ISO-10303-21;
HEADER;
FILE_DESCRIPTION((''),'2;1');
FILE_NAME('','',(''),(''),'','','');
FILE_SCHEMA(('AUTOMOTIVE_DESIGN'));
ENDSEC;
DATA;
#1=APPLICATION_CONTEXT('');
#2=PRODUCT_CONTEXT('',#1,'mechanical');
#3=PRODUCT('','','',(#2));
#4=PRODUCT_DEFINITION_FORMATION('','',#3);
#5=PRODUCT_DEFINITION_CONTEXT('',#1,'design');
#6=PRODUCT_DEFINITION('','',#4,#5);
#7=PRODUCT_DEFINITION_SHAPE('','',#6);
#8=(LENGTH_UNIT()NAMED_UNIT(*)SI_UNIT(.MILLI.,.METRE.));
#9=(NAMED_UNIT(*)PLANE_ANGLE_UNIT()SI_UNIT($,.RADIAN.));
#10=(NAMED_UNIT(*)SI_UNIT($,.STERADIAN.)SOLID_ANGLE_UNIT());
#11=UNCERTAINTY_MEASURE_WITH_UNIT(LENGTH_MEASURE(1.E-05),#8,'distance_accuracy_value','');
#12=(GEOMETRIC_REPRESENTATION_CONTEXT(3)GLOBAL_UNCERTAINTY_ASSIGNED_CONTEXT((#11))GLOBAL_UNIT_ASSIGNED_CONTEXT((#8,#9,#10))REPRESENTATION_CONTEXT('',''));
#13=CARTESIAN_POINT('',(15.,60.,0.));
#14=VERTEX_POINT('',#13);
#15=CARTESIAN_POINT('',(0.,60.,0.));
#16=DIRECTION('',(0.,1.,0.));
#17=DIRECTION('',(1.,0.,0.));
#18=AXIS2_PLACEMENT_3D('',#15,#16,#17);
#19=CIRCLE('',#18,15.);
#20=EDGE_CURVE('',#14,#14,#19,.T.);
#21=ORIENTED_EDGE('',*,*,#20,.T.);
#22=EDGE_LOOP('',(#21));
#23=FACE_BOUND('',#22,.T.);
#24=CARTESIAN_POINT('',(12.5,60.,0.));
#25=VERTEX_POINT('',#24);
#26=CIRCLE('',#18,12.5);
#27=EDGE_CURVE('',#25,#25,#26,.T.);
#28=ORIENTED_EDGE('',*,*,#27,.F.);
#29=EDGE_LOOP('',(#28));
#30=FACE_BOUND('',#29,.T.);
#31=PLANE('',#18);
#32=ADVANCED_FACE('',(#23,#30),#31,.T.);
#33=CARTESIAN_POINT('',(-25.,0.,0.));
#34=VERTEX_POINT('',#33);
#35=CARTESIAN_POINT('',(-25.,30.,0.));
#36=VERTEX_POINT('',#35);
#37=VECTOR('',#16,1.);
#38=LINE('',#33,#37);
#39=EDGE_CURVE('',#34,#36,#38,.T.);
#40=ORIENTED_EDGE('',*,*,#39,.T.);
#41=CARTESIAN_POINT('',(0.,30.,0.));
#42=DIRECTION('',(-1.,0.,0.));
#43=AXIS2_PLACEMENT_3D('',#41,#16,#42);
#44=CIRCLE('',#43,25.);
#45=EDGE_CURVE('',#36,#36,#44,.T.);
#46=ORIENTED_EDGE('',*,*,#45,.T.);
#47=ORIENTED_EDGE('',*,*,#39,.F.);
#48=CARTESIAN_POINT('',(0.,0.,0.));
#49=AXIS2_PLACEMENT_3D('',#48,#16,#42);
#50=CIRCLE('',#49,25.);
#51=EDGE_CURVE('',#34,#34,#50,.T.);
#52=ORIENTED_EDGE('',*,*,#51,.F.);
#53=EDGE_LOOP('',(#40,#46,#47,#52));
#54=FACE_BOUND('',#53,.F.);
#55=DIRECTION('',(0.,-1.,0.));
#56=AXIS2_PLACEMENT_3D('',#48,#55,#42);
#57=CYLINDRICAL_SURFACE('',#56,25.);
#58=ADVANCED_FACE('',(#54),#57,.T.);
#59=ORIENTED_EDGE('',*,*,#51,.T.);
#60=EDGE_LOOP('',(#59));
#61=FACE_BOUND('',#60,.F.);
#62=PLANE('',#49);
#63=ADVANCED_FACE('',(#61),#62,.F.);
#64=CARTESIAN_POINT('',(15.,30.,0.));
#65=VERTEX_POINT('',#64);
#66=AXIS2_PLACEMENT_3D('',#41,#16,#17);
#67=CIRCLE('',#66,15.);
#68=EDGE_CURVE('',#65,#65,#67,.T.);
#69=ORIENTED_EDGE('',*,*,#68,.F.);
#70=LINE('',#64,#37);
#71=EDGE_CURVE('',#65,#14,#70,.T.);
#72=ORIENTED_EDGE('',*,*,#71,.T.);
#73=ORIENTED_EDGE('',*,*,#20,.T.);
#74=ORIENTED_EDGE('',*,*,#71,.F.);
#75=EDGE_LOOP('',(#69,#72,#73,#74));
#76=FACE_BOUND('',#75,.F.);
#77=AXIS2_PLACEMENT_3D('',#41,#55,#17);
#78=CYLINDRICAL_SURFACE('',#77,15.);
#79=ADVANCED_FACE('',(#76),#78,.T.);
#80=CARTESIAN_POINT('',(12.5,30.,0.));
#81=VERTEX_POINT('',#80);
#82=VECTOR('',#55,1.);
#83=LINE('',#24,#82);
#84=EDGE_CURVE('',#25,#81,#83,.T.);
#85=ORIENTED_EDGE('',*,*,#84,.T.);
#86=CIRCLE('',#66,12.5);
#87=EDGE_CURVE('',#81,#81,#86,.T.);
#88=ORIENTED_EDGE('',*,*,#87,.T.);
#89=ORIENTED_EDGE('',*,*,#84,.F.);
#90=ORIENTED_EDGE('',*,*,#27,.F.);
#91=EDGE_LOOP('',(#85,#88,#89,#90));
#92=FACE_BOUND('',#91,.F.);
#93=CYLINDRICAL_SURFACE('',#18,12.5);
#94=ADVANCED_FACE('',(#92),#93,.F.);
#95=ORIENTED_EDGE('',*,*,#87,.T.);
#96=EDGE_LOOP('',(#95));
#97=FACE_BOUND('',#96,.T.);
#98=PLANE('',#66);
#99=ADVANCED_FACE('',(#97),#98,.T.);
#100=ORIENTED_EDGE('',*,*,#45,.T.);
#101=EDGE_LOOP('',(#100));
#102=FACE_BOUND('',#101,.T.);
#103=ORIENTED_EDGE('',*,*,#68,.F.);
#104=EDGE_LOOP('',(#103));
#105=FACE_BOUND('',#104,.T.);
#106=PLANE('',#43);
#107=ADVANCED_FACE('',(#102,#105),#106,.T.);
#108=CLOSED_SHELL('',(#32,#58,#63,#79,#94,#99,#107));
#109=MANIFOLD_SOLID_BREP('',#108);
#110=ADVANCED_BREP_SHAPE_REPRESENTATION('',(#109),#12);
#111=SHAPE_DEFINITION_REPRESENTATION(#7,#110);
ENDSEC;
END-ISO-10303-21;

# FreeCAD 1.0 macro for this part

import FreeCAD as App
import Part
import Sketcher

doc = App.newDocument("Part")
body = doc.addObject("PartDesign::Body", "Body")

# Sketch on XZ plane
sketch1 = doc.addObject("Sketcher::SketchObject", "Sketch")
body.addObject(sketch1)
sketch1.AttachmentSupport = (doc.XZ_Plane, [""])
sketch1.MapMode = "FlatFace"
sketch1.addGeometry(Part.Circle(App.Vector(0, 0, 0), App.Vector(0, 0, 1), 25), False)
sketch1.addConstraint([
    Sketcher.Constraint("Coincident", 0, 3, -1, 1),
    Sketcher.Constraint("Diameter", 0, 50.0),
])
pad1 = doc.addObject("PartDesign::Pad", "Pad")
body.addObject(pad1)
pad1.Profile = sketch1
pad1.Length = 30
pad1.Reversed = True

# Sketch on XZ plane
sketch2 = doc.addObject("Sketcher::SketchObject", "Sketch001")
body.addObject(sketch2)
sketch2.AttachmentSupport = (doc.XZ_Plane, [""])
sketch2.MapMode = "FlatFace"
sketch2.AttachmentOffset = App.Placement(App.Vector(0, 0, -30), App.Rotation())
sketch2.addGeometry(Part.Circle(App.Vector(0, 0, 0), App.Vector(0, 0, 1), 15), False)
sketch2.addConstraint([
    Sketcher.Constraint("Coincident", 0, 3, -1, 1),
    Sketcher.Constraint("Diameter", 0, 30.0),
])
pad2 = doc.addObject("PartDesign::Pad", "Pad001")
body.addObject(pad2)
pad2.Profile = sketch2
pad2.Length = 30
pad2.Reversed = True

# Sketch on XZ plane
sketch3 = doc.addObject("Sketcher::SketchObject", "Sketch002")
body.addObject(sketch3)
sketch3.AttachmentSupport = (doc.XZ_Plane, [""])
sketch3.MapMode = "FlatFace"
sketch3.AttachmentOffset = App.Placement(App.Vector(0, 0, -60), App.Rotation())
sketch3.addGeometry(Part.Circle(App.Vector(0, 0, 0), App.Vector(0, 0, 1), 12), False)
sketch3.addConstraint([
    Sketcher.Constraint("Coincident", 0, 3, -1, 1),
    Sketcher.Constraint("Diameter", 0, 25.0),
])
pocket1 = doc.addObject("PartDesign::Pocket", "Pocket")
body.addObject(pocket1)
pocket1.Profile = sketch3
pocket1.Length = 30
pocket1.Reversed = True

doc.recompute()
